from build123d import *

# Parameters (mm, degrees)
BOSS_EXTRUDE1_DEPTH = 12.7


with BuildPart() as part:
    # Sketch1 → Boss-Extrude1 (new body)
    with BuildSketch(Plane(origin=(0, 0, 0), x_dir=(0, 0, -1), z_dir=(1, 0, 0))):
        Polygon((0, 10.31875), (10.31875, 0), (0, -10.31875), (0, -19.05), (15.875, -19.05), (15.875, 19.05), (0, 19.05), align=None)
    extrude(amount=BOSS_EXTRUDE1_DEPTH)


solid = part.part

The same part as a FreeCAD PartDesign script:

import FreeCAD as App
import Part
import Sketcher

V = App.Vector
Q = App.Units.Quantity

doc = App.newDocument("Part")
body = doc.addObject("PartDesign::Body", "Body")

sketch1 = body.newObject("Sketcher::SketchObject", "Sketch")
sketch1.AttachmentSupport = (doc.getObject("YZ_Plane"), [""])
sketch1.MapMode = "FlatFace"
sketch1.addGeometry([
    Part.LineSegment(V(10, 0, 0), V(0, -10, 0)),
    Part.LineSegment(V(0, -10, 0), V(-10, 0, 0)),
    Part.LineSegment(V(-10, 0, 0), V(-19, 0, 0)),
    Part.LineSegment(V(-19, 0, 0), V(-19, -16, 0)),
    Part.LineSegment(V(-19, -16, 0), V(19, -16, 0)),
    Part.LineSegment(V(19, -16, 0), V(19, 0, 0)),
    Part.LineSegment(V(19, 0, 0), V(10, 0, 0)),
], False)
sketch1.addConstraint([
    Sketcher.Constraint("Coincident", 0, 2, 1, 1),
    Sketcher.Constraint("Coincident", 1, 2, 2, 1),
    Sketcher.Constraint("Coincident", 2, 2, 3, 1),
    Sketcher.Constraint("Coincident", 3, 2, 4, 1),
    Sketcher.Constraint("Coincident", 4, 2, 5, 1),
    Sketcher.Constraint("Coincident", 5, 2, 6, 1),
    Sketcher.Constraint("Coincident", 6, 2, 0, 1),
    Sketcher.Constraint("Horizontal", 2),
    Sketcher.Constraint("Vertical", 3),
    Sketcher.Constraint("Horizontal", 4),
    Sketcher.Constraint("Vertical", 5),
    Sketcher.Constraint("Horizontal", 6),
    Sketcher.Constraint("Symmetric", 2, 2, 5, 2, -1, 1),
    Sketcher.Constraint("Symmetric", 1, 2, 6, 2, -2),
    Sketcher.Constraint("PointOnObject", 0, 2, -2),
    Sketcher.Constraint("Perpendicular", 0, 1),
    Sketcher.Constraint("DistanceX", 4, 1, 4, 2, Q("1.5 in")),
    Sketcher.Constraint("DistanceX", 2, 2, 2, 1, Q("0.34375 in")),
    Sketcher.Constraint("DistanceY", 3, 2, 3, 1, Q("0.625 in")),
])
pad1 = body.newObject("PartDesign::Pad", "Pad")
pad1.Profile = sketch1
pad1.Length = Q("0.5 in")

doc.recompute()
